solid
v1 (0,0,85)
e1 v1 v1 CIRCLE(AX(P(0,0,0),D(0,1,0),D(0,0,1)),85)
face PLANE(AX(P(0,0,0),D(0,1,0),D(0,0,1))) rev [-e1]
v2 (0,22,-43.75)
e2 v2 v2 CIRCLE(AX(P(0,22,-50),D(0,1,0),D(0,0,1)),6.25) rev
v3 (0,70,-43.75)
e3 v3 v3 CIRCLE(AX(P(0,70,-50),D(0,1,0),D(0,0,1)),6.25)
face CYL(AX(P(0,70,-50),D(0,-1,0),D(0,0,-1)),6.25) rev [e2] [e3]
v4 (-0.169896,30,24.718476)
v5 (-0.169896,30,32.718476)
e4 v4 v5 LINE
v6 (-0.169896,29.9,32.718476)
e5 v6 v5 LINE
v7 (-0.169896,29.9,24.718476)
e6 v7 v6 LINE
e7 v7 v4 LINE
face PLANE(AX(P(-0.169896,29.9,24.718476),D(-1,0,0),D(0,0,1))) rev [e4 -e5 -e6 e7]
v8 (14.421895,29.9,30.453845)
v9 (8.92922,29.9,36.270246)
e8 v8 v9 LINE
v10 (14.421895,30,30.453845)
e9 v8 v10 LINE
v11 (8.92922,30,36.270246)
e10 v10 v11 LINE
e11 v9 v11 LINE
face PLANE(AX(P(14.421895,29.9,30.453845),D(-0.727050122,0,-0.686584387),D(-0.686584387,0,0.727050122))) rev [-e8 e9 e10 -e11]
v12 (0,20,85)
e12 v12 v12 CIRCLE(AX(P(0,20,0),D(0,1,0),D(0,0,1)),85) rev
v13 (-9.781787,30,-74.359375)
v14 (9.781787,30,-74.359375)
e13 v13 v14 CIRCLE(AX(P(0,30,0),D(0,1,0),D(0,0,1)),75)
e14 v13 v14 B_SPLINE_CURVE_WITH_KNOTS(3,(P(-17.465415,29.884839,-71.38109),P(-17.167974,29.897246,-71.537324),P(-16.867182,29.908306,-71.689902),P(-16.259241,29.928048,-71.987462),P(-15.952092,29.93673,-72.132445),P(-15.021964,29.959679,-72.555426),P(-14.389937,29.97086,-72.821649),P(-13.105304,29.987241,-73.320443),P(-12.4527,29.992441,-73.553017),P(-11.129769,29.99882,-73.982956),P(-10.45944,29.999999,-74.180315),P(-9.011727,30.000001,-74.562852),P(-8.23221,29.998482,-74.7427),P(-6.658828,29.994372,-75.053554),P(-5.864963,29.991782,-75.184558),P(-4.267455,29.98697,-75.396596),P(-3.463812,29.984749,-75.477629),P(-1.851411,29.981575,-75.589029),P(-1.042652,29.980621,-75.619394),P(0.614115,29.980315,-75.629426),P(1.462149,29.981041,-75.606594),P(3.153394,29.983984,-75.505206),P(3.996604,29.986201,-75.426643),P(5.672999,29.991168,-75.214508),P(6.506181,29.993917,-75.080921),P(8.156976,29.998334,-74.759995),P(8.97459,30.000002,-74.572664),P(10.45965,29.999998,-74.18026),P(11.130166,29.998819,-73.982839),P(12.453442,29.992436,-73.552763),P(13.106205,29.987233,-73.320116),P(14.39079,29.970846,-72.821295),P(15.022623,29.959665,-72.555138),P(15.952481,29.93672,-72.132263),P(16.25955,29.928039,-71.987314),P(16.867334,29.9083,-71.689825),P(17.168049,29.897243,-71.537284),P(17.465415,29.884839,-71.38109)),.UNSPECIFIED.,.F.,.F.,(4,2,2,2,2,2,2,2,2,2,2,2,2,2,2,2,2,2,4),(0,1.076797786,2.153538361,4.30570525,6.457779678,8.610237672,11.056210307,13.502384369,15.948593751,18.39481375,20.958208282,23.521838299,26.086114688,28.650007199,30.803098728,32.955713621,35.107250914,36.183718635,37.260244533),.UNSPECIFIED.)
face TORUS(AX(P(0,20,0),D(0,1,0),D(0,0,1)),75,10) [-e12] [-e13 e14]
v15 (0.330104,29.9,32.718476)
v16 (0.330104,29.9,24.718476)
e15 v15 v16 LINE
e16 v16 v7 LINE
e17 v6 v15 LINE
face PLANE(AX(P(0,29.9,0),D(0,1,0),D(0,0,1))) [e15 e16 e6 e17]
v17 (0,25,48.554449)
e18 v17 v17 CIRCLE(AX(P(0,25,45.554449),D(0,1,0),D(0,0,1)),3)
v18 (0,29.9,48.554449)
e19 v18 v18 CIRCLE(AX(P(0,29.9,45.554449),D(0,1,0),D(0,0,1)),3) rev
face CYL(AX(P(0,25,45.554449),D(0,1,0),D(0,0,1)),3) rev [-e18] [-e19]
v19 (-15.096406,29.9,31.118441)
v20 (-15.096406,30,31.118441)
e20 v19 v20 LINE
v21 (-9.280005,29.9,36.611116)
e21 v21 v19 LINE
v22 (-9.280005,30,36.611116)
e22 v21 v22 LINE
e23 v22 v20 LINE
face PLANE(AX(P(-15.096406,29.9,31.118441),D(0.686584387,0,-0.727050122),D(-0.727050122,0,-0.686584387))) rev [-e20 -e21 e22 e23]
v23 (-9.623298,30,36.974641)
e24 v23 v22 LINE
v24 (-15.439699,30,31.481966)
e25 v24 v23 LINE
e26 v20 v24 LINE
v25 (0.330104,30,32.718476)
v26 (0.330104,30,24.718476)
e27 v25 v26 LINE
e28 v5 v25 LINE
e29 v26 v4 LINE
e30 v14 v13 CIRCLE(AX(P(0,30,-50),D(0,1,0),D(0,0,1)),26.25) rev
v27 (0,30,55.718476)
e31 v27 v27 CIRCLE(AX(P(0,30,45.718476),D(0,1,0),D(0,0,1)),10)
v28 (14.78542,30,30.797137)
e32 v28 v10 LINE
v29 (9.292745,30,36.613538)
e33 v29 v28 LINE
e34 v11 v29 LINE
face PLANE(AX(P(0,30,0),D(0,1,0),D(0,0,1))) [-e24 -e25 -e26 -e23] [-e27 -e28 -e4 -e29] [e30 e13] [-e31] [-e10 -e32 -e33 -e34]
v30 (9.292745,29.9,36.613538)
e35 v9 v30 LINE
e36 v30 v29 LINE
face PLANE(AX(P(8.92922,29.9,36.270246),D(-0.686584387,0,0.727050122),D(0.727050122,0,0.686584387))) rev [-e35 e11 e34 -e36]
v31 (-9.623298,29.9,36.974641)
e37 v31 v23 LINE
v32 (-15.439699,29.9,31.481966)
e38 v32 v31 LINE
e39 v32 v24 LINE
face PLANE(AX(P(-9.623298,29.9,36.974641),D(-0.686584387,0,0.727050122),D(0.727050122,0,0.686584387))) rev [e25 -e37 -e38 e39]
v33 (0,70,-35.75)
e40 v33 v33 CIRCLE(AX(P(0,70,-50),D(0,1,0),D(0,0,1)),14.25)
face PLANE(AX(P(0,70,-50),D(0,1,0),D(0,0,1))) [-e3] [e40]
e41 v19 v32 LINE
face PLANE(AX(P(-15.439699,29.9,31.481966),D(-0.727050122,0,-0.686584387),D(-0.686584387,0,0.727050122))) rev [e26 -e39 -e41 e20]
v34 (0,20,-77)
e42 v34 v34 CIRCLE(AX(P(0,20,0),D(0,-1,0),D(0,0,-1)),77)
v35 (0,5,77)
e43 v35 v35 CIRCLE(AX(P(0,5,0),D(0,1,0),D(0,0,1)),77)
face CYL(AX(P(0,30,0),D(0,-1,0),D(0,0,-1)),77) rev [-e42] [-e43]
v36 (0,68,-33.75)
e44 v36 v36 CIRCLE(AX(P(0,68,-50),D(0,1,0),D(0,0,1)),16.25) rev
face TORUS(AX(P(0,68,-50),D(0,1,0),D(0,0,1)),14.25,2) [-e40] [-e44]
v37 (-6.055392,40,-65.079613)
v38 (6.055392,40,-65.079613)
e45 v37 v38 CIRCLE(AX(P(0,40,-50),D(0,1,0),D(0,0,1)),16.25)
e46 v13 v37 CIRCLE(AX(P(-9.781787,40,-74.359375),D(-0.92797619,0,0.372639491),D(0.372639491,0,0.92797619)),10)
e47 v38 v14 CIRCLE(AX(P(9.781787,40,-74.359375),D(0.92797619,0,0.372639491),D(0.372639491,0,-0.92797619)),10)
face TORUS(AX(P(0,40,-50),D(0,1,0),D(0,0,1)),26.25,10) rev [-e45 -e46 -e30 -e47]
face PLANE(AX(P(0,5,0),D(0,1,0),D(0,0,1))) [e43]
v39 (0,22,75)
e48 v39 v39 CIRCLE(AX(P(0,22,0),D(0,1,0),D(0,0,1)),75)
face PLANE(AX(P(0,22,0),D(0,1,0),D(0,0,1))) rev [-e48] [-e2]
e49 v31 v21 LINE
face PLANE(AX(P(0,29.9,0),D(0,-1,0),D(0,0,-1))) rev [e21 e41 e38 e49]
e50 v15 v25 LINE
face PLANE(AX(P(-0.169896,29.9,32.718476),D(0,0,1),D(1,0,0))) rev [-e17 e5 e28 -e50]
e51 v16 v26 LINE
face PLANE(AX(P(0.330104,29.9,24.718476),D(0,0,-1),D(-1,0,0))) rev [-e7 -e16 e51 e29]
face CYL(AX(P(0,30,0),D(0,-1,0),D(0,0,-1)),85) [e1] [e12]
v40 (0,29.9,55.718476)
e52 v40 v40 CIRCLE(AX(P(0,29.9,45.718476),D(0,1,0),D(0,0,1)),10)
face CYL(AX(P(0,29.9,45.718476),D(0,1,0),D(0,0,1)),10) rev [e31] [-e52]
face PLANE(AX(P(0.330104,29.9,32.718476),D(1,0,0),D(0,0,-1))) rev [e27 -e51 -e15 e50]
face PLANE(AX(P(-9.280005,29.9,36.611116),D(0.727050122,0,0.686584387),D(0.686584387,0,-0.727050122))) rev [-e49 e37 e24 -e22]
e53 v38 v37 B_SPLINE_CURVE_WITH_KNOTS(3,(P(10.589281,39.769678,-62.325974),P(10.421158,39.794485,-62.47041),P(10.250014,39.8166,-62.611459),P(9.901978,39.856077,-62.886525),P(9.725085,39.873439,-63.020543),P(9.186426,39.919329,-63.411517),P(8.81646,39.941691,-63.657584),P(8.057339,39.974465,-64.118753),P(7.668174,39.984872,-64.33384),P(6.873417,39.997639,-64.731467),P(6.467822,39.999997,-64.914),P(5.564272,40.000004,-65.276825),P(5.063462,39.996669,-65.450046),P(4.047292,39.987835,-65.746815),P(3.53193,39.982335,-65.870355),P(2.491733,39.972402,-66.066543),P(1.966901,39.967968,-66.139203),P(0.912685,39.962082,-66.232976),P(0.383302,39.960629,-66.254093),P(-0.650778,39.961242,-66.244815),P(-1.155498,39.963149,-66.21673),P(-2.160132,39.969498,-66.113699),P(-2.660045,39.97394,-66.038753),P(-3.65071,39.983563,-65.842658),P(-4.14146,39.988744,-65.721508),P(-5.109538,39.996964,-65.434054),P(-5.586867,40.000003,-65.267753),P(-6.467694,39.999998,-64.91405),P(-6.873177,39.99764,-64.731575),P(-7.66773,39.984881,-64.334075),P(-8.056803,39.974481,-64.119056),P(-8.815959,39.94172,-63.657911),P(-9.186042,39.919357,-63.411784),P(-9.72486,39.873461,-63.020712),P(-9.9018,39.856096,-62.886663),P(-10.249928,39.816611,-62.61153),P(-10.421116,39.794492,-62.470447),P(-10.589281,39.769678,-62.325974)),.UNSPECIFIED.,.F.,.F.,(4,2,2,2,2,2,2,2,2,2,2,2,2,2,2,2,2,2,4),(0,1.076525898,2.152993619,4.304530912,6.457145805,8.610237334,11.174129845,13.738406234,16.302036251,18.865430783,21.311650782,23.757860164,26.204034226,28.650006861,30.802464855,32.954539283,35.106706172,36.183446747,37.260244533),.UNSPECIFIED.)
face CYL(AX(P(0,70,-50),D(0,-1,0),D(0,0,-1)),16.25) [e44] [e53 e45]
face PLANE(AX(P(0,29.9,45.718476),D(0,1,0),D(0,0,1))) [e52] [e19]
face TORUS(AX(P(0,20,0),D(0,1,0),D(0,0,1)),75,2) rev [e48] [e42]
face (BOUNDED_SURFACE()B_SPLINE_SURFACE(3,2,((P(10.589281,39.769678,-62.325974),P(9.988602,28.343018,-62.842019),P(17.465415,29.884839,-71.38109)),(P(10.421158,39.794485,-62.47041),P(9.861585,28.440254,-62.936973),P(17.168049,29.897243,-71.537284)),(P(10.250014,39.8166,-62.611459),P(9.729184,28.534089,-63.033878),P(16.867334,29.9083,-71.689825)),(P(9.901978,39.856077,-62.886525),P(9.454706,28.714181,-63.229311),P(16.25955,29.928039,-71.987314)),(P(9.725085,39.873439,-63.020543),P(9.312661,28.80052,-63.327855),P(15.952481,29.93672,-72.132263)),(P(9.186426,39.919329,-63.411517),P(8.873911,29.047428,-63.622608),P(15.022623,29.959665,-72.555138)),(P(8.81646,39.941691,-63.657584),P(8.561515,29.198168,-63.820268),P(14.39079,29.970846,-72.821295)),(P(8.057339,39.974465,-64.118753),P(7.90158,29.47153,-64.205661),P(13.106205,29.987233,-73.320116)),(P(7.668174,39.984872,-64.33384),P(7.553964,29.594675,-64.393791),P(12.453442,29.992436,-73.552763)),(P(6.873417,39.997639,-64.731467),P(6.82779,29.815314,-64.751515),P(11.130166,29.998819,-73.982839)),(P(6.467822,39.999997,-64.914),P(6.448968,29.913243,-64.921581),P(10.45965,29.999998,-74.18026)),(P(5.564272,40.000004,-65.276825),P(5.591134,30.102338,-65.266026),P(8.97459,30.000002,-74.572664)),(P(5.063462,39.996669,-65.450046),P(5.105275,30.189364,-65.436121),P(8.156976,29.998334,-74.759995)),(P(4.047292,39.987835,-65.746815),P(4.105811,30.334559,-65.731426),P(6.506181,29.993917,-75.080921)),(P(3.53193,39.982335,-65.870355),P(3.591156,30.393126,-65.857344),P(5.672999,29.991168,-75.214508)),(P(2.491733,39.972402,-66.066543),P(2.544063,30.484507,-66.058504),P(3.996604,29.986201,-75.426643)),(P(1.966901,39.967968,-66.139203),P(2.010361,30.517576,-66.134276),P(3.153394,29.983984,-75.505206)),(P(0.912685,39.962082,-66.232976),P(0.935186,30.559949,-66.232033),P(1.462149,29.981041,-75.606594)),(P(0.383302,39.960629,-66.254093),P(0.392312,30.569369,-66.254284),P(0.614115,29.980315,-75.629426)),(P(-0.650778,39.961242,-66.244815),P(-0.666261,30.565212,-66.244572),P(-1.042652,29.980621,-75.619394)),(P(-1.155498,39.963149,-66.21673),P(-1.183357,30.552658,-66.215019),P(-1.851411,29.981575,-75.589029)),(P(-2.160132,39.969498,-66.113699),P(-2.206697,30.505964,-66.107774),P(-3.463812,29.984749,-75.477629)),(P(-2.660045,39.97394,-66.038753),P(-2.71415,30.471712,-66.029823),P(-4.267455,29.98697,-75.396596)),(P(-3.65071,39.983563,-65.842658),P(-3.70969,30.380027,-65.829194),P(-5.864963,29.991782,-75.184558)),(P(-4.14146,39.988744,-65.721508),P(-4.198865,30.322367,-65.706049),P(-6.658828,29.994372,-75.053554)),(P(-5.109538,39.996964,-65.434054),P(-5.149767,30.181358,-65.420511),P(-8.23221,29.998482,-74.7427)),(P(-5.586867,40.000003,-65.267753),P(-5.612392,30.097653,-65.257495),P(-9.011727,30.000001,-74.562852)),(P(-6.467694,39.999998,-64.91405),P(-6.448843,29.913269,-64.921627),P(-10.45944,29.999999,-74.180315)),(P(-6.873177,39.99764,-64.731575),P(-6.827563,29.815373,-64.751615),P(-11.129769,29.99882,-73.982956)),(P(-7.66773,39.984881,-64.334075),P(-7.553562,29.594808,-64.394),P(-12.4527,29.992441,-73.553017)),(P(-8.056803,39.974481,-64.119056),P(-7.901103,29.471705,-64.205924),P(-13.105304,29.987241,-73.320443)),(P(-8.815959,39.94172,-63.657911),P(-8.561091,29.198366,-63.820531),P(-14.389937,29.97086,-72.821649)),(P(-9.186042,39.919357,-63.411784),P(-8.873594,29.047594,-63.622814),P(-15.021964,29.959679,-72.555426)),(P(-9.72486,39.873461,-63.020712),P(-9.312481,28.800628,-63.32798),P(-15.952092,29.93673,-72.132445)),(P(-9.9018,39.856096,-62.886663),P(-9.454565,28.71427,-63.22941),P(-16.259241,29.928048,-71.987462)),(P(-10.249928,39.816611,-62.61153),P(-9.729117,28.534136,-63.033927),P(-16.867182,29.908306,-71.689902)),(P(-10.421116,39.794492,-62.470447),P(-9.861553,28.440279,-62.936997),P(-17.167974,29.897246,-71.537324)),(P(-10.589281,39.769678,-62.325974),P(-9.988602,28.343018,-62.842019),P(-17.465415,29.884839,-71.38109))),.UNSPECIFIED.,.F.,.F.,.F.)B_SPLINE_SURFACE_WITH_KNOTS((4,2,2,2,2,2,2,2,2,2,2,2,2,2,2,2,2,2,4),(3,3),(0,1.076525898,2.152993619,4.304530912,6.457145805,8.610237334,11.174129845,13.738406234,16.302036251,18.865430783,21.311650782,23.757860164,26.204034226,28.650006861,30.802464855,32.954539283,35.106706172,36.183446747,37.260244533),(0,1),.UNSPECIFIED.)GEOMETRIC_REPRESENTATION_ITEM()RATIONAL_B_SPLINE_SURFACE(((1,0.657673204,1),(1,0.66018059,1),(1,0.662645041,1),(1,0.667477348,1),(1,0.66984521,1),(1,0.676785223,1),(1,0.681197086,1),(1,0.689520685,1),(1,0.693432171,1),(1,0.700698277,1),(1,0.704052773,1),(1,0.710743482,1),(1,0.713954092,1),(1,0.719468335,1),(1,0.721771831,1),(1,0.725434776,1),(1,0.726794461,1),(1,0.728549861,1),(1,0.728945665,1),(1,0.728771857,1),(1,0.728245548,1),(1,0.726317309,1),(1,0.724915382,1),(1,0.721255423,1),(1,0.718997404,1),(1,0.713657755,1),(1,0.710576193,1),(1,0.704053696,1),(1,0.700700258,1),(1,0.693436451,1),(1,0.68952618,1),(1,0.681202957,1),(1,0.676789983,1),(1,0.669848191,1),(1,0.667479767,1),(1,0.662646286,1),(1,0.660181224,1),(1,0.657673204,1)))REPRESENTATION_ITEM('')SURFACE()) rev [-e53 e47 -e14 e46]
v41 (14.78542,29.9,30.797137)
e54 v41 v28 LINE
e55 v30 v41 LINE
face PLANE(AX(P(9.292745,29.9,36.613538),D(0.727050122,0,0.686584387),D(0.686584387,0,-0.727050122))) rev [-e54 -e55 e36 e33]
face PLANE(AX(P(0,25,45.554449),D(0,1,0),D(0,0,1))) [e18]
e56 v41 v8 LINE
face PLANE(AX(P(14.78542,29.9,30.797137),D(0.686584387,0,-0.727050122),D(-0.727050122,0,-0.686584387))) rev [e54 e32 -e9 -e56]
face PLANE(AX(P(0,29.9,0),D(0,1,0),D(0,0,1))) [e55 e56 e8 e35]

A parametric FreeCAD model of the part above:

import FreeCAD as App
import Part
import Sketcher
Q = App.Units.Quantity


def edges_at(feature, points):
    """Names of the edges that pass closest to the given points."""
    edges = feature.Shape.Edges
    near = lambda p: min(range(len(edges)), key=lambda i: edges[i].distToShape(Part.Vertex(*p))[0])
    return sorted({f"Edge{near(p) + 1}" for p in points})


def faces_at(feature, points):
    """Names of the faces that lie closest to the given points."""
    faces = feature.Shape.Faces
    near = lambda p: min(range(len(faces)), key=lambda i: faces[i].distToShape(Part.Vertex(*p))[0])
    return sorted({f"Face{near(p) + 1}" for p in points})


def add_polygon(sketch, points):
    """Adds a closed chain of lines whose ends are joined by coincident constraints."""
    first, n = sketch.GeometryCount, len(points)
    for a, b in zip(points, points[1:] + points[:1]):
        sketch.addGeometry(Part.LineSegment(App.Vector(*a, 0), App.Vector(*b, 0)), False)
    for i in range(n):
        sketch.addConstraint(Sketcher.Constraint("Coincident", first + i, 2, first + (i + 1) % n, 1))

doc = App.newDocument("Part")
body = doc.addObject("PartDesign::Body", "Body")

# Sketch on XZ plane
sketch1 = body.newObject("Sketcher::SketchObject", "Sketch")
sketch1.AttachmentSupport = (doc.getObject("XZ_Plane"), [""])
sketch1.MapMode = "FlatFace"
sketch1.addGeometry(Part.Circle(App.Vector(0, 0, 0), App.Vector(0, 0, 1), 85), False)
sketch1.addConstraint(Sketcher.Constraint("Coincident", 0, 3, -1, 1))
sketch1.addConstraint(Sketcher.Constraint("Diameter", 0, Q("170 mm")))
pad1 = body.newObject("PartDesign::Pad", "Pad")
pad1.Profile = sketch1
pad1.Length = 30
pad1.Reversed = True
doc.recompute()

fillet = body.newObject("PartDesign::Fillet", "Fillet")
fillet.Base = (pad1, edges_at(pad1, [(0, 30, -85)]))
fillet.Radius = 10
doc.recompute()

thickness = body.newObject("PartDesign::Thickness", "Thickness")
thickness.Base = (fillet, faces_at(fillet, [(0, 0, 0)]))
thickness.Value = 8
thickness.Reversed = True
thickness.Join = "Intersection"

# Sketch on XZ plane
sketch2 = body.newObject("Sketcher::SketchObject", "Sketch001")
sketch2.AttachmentSupport = (doc.getObject("XZ_Plane"), [""])
sketch2.MapMode = "FlatFace"
sketch2.addGeometry(Part.Circle(App.Vector(0, 0, 0), App.Vector(0, 0, 1), 85), False)
sketch2.addConstraint(Sketcher.Constraint("Coincident", 0, 3, -1, 1))
sketch2.addConstraint(Sketcher.Constraint("Diameter", 0, Q("170 mm")))
pad2 = body.newObject("PartDesign::Pad", "Pad001")
pad2.Profile = sketch2
pad2.Length = 5
pad2.Reversed = True

# Sketch on XZ plane
sketch3 = body.newObject("Sketcher::SketchObject", "Sketch002")
sketch3.AttachmentSupport = (doc.getObject("XZ_Plane"), [""])
sketch3.MapMode = "FlatFace"
sketch3.AttachmentOffset = App.Placement(App.Vector(0, 0, -30), App.Rotation())
sketch3.addGeometry(Part.Circle(App.Vector(0, -50, 0), App.Vector(0, 0, 1), 16), False)
sketch3.addGeometry(Part.Circle(App.Vector(0, -50, 0), App.Vector(0, 0, 1), 6), False)
sketch3.addConstraint(Sketcher.Constraint("Coincident", 1, 3, 0, 3))
sketch3.addConstraint(Sketcher.Constraint("PointOnObject", 0, 3, -2))
sketch3.addConstraint(Sketcher.Constraint("Diameter", 0, Q("32.5 mm")))
sketch3.addConstraint(Sketcher.Constraint("Diameter", 1, Q("12.5 mm")))
sketch3.addConstraint(Sketcher.Constraint("DistanceY", 0, 3, -1, 1, Q("50 mm")))
pad3 = body.newObject("PartDesign::Pad", "Pad002")
pad3.Profile = sketch3
pad3.Length = 40
pad3.Reversed = True

# Sketch on XZ plane
sketch4 = body.newObject("Sketcher::SketchObject", "Sketch003")
sketch4.AttachmentSupport = (doc.getObject("XZ_Plane"), [""])
sketch4.MapMode = "FlatFace"
sketch4.AttachmentOffset = App.Placement(App.Vector(0, 0, -30), App.Rotation())
sketch4.addGeometry(Part.Circle(App.Vector(0, -50, 0), App.Vector(0, 0, 1), 6), False)
sketch4.addConstraint(Sketcher.Constraint("PointOnObject", 0, 3, -2))
sketch4.addConstraint(Sketcher.Constraint("Diameter", 0, Q("12.5 mm")))
sketch4.addConstraint(Sketcher.Constraint("DistanceY", 0, 3, -1, 1, Q("50 mm")))
pocket1 = body.newObject("PartDesign::Pocket", "Pocket")
pocket1.Profile = sketch4
pocket1.Type = "UpToFirst"
pocket1.Reversed = True
doc.recompute()

fillet2 = body.newObject("PartDesign::Fillet", "Fillet001")
fillet2.Base = (pocket1, edges_at(pocket1, [(0, 30, -66.25)]))
fillet2.Radius = 10
doc.recompute()

fillet3 = body.newObject("PartDesign::Fillet", "Fillet002")
fillet3.Base = (fillet2, edges_at(fillet2, [(0, 70, -66.25)]))
fillet3.Radius = 2

# Sketch on XZ plane
sketch5 = body.newObject("Sketcher::SketchObject", "Sketch004")
sketch5.AttachmentSupport = (doc.getObject("XZ_Plane"), [""])
sketch5.MapMode = "FlatFace"
sketch5.AttachmentOffset = App.Placement(App.Vector(0, 0, -30), App.Rotation())
sketch5.addGeometry(Part.Circle(App.Vector(0, 45.6, 0), App.Vector(0, 0, 1), 3), False)
sketch5.addConstraint(Sketcher.Constraint("PointOnObject", 0, 3, -2))
sketch5.addConstraint(Sketcher.Constraint("Diameter", 0, Q("6 mm")))
sketch5.addConstraint(Sketcher.Constraint("DistanceY", -1, 1, 0, 3, Q("45.554449 mm")))
pocket2 = body.newObject("PartDesign::Pocket", "Pocket001")
pocket2.Profile = sketch5
pocket2.Length = 5
pocket2.Reversed = True

# Sketch on XZ plane
sketch6 = body.newObject("Sketcher::SketchObject", "Sketch005")
sketch6.AttachmentSupport = (doc.getObject("XZ_Plane"), [""])
sketch6.MapMode = "FlatFace"
sketch6.AttachmentOffset = App.Placement(App.Vector(0, 0, -30), App.Rotation())
sketch6.addGeometry(Part.Circle(App.Vector(0, 45.72, 0), App.Vector(0, 0, 1), 10), False)  # 0
add_polygon(sketch6, [(8.93, 36.27), (9.29, 36.61), (14.79, 30.8), (14.42, 30.45)])  # lines 1-4
add_polygon(sketch6, [(-0.17, 24.72), (-0.17, 32.72), (0.33, 32.72), (0.33, 24.72)])  # lines 5-8
add_polygon(sketch6, [(-9.62, 36.97), (-9.28, 36.61), (-15.1, 31.12), (-15.44, 31.48)])  # lines 9-12
sketch6.addConstraint(Sketcher.Constraint("Vertical", 5))
sketch6.addConstraint(Sketcher.Constraint("Horizontal", 6))
sketch6.addConstraint(Sketcher.Constraint("Vertical", 7))
sketch6.addConstraint(Sketcher.Constraint("Horizontal", 8))
sketch6.addConstraint(Sketcher.Constraint("PointOnObject", 0, 3, -2))
sketch6.addConstraint(Sketcher.Constraint("Perpendicular", 1, 2))
sketch6.addConstraint(Sketcher.Constraint("Perpendicular", 2, 3))
sketch6.addConstraint(Sketcher.Constraint("Perpendicular", 3, 4))
sketch6.addConstraint(Sketcher.Constraint("Parallel", 4, 9))
sketch6.addConstraint(Sketcher.Constraint("Perpendicular", 9, 10))
sketch6.addConstraint(Sketcher.Constraint("Perpendicular", 10, 11))
sketch6.addConstraint(Sketcher.Constraint("Perpendicular", 11, 12))
sketch6.addConstraint(Sketcher.Constraint("Equal", 3, 9))
sketch6.addConstraint(Sketcher.Constraint("Equal", 4, 10))
sketch6.addConstraint(Sketcher.Constraint("Diameter", 0, Q("20 mm")))
sketch6.addConstraint(Sketcher.Constraint("DistanceY", 5, 1, 5, 2, Q("8 mm")))
sketch6.addConstraint(Sketcher.Constraint("Distance", 2, Q("8 mm")))
sketch6.addConstraint(Sketcher.Constraint("DistanceX", 6, 1, 6, 2, Q("0.5 mm")))
sketch6.addConstraint(Sketcher.Constraint("DistanceY", 5, 2, 0, 3, Q("13 mm")))
sketch6.addConstraint(Sketcher.Constraint("Distance", 1, Q("0.5 mm")))
sketch6.addConstraint(Sketcher.Constraint("DistanceX", 11, 2, -1, 1, Q("15.439699 mm")))
sketch6.addConstraint(Sketcher.Constraint("DistanceY", 2, 2, 1, 2, Q("5.816401 mm")))
sketch6.addConstraint(Sketcher.Constraint("DistanceX", 12, 2, 5, 2, Q("9.453402 mm")))
sketch6.addConstraint(Sketcher.Constraint("DistanceX", -1, 1, 2, 2, Q("14.78542 mm")))
sketch6.addConstraint(Sketcher.Constraint("DistanceY", -1, 1, 10, 2, Q("31.118441 mm")))
sketch6.addConstraint(Sketcher.Constraint("DistanceY", 1, 2, 0, 3, Q("9.104938 mm")))
sketch6.addConstraint(Sketcher.Constraint("DistanceY", 5, 2, 9, 2, Q("3.89264 mm")))
pocket3 = body.newObject("PartDesign::Pocket", "Pocket002")
pocket3.Profile = sketch6
pocket3.Length = 0.1
pocket3.Reversed = True

doc.recompute()
